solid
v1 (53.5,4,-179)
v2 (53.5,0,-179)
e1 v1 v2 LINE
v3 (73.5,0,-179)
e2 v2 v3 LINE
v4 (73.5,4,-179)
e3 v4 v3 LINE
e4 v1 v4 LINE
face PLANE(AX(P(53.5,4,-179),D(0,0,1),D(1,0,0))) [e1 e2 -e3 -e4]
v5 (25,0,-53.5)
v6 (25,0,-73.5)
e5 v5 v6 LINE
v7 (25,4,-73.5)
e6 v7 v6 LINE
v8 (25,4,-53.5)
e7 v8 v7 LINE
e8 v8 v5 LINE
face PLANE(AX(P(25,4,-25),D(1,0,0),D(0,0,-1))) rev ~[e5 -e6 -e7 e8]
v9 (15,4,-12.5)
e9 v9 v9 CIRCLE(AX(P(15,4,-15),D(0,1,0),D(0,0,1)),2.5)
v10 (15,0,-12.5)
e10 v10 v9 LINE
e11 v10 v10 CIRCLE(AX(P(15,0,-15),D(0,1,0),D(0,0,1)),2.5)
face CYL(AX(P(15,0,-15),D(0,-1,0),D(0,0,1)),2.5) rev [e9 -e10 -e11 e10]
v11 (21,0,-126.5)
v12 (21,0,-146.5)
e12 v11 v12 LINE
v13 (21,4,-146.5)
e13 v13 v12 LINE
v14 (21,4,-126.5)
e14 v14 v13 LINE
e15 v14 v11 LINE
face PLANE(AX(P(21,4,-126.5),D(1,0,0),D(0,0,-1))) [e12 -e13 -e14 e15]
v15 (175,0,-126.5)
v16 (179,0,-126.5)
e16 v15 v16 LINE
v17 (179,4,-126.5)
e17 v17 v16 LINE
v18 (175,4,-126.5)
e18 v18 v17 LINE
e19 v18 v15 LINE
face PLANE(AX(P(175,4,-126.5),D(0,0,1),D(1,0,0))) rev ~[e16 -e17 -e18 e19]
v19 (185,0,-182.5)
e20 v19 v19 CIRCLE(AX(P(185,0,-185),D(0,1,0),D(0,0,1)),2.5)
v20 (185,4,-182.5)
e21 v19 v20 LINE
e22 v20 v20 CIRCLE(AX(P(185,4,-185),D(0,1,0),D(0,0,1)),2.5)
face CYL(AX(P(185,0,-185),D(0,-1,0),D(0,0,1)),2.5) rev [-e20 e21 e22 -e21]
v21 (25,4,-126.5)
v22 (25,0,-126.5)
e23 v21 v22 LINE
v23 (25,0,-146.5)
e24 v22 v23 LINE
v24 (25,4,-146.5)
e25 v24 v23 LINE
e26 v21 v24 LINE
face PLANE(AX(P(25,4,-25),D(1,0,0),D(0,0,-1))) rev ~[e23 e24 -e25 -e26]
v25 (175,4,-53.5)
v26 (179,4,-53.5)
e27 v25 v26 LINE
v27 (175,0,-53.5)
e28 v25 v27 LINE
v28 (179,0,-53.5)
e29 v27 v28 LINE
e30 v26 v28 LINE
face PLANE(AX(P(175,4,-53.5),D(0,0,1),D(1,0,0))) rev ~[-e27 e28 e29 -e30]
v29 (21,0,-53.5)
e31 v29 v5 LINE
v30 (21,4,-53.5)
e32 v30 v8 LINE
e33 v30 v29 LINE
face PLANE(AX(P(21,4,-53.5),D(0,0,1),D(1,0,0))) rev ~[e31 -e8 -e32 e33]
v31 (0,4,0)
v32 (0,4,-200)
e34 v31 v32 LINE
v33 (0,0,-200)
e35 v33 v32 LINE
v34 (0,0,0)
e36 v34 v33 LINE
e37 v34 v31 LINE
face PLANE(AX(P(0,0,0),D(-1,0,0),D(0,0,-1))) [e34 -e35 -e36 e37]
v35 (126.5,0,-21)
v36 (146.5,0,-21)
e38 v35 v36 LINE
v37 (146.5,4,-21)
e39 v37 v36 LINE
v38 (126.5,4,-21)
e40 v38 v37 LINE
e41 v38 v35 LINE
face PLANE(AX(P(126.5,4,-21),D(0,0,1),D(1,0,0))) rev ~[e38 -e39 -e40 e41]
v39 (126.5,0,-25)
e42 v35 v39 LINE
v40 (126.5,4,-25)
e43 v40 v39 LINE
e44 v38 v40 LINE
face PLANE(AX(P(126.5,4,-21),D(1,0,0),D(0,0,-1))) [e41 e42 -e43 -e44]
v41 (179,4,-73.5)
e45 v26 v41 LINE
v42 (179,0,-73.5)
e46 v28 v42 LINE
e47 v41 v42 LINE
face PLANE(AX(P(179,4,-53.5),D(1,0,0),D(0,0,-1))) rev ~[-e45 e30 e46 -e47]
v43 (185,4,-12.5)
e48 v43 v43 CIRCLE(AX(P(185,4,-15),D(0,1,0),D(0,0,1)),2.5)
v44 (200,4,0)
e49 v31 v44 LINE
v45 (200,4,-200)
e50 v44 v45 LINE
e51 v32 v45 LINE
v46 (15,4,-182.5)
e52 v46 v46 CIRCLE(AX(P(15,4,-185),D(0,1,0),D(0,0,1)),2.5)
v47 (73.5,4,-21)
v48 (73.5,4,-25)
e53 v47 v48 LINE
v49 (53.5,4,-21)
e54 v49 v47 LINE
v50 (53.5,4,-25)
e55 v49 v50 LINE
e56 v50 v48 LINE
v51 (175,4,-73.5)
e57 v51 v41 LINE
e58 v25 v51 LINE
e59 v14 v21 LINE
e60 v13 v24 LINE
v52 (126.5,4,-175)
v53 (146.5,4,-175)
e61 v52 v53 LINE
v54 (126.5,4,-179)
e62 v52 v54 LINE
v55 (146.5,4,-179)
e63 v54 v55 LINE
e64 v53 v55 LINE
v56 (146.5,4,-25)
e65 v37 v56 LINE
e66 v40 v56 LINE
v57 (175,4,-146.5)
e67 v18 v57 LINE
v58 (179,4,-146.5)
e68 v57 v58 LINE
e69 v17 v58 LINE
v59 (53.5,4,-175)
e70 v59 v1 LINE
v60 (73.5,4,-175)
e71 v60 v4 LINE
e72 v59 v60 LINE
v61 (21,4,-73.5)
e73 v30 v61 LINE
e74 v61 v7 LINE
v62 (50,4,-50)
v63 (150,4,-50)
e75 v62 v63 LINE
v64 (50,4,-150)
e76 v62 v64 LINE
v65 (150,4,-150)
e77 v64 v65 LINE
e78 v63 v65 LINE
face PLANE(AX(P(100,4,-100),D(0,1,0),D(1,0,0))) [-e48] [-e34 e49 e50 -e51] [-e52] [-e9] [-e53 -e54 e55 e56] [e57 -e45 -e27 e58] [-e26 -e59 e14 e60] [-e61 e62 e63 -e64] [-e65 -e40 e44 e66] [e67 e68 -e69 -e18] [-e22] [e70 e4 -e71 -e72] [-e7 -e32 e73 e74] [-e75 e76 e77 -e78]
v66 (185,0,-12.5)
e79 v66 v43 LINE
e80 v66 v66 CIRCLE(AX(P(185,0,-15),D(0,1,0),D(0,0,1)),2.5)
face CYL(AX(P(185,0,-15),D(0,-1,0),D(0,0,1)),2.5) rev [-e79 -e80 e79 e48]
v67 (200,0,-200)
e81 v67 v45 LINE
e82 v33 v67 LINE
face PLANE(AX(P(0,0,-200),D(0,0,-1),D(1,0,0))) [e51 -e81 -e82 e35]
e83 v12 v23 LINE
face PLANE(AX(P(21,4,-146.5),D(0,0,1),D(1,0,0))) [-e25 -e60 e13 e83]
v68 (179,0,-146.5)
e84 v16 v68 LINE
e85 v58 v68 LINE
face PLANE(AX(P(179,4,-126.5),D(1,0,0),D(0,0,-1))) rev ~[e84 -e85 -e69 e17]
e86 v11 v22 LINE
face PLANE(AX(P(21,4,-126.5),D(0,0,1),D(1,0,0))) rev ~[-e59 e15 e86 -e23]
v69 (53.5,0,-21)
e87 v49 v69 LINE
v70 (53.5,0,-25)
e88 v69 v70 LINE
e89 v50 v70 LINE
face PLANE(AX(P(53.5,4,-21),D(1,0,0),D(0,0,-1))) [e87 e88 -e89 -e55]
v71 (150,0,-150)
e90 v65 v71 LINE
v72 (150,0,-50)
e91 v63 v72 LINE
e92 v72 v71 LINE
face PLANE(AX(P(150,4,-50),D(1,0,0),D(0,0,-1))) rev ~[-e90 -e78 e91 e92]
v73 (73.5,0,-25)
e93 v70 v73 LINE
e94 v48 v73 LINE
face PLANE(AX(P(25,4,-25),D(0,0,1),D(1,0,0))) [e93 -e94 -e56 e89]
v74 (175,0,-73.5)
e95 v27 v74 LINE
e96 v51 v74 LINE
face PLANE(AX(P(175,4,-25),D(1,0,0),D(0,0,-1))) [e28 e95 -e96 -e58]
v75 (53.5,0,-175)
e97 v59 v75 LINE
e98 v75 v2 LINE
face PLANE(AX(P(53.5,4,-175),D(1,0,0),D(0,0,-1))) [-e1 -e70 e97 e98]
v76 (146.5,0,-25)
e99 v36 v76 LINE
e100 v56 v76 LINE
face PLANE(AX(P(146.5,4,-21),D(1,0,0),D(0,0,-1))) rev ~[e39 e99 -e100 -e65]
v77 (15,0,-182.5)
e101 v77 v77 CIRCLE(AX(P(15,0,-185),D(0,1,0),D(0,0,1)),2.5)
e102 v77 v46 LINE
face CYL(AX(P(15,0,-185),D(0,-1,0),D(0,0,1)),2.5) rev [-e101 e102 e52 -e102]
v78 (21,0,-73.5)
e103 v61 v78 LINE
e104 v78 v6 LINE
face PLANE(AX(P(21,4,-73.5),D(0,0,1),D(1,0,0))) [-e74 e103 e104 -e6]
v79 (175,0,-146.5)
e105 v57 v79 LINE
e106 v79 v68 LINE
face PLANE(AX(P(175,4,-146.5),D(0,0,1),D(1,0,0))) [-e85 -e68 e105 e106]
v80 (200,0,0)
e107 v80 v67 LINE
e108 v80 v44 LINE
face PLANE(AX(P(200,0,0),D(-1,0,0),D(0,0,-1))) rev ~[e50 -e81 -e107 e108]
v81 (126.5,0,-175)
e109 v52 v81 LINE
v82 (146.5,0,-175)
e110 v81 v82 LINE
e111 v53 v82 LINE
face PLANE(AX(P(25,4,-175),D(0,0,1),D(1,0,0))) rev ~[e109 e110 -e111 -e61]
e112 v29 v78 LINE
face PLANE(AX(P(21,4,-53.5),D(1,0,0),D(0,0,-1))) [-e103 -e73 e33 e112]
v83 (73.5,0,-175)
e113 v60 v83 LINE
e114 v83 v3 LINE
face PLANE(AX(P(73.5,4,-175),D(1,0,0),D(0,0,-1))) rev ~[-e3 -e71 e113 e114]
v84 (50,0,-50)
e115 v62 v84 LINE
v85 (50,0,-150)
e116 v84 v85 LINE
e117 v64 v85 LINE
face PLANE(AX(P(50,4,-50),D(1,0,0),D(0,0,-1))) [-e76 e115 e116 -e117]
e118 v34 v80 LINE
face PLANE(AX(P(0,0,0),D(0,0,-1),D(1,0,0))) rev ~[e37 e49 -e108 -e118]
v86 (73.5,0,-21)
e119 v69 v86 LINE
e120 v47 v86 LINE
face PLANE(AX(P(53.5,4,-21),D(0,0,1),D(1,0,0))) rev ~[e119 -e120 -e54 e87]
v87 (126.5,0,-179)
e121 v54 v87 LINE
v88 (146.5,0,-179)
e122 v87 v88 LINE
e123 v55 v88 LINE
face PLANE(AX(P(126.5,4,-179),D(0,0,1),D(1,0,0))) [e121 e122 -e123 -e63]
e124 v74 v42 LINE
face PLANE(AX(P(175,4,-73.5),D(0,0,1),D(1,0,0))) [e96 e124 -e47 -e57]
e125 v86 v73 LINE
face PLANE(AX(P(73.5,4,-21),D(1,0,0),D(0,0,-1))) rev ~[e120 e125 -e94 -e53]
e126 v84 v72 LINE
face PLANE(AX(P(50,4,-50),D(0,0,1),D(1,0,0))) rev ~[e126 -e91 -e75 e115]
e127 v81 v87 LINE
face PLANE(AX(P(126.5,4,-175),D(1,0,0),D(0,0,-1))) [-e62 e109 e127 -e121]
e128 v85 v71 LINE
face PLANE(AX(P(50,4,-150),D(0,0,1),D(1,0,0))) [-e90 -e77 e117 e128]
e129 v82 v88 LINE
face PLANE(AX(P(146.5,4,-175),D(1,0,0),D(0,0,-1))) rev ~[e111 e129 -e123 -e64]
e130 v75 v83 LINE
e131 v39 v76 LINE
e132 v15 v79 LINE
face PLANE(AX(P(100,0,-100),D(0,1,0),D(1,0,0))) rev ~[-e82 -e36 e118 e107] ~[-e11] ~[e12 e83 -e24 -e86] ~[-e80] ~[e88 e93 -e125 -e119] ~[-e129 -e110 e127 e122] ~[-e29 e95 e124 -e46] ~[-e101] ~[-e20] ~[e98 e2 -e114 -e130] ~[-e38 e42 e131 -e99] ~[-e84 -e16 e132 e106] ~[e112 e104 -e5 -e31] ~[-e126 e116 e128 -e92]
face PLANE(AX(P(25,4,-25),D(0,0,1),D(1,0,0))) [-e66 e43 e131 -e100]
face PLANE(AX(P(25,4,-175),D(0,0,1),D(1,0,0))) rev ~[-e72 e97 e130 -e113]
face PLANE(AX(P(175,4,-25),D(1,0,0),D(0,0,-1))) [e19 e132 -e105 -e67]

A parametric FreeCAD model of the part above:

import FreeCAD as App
import Part
import Sketcher

V = App.Vector


def add_polygon(sketch, points):
    """Adds a closed chain of lines whose ends are joined by coincident constraints."""
    first, n = sketch.GeometryCount, len(points)
    for a, b in zip(points, points[1:] + points[:1]):
        sketch.addGeometry(Part.LineSegment(App.Vector(*a, 0), App.Vector(*b, 0)), False)
    for i in range(n):
        sketch.addConstraint(Sketcher.Constraint("Coincident", first + i, 2, first + (i + 1) % n, 1))

doc = App.newDocument("Part")
body = doc.addObject("PartDesign::Body", "Body")

# Sketch on XZ plane
sketch1 = body.newObject("Sketcher::SketchObject", "Sketch")
sketch1.AttachmentSupport = (doc.getObject("XZ_Plane"), [""])
sketch1.MapMode = "FlatFace"
add_polygon(sketch1, [(0, -200), (0, 0), (200, 0), (200, -200)])  # lines 0-3
sketch1.addGeometry(Part.Circle(V(15, -15, 0), V(0, 0, 1), 2.5), False)  # 4
sketch1.addGeometry(Part.Circle(V(185, -15, 0), V(0, 0, 1), 2.5), False)  # 5
sketch1.addGeometry(Part.Circle(V(15, -185, 0), V(0, 0, 1), 2.5), False)  # 6
sketch1.addGeometry(Part.Circle(V(185, -185, 0), V(0, 0, 1), 2.5), False)  # 7
sketch1.addConstraint([
    Sketcher.Constraint("Vertical", 0),
    Sketcher.Constraint("Horizontal", 1),
    Sketcher.Constraint("Vertical", 2),
    Sketcher.Constraint("Horizontal", 3),
    Sketcher.Constraint("Coincident", 0, 2, -1, 1),
    Sketcher.Constraint("Equal", 4, 5),
    Sketcher.Constraint("Equal", 5, 6),
    Sketcher.Constraint("Equal", 6, 7),
    Sketcher.Constraint("Horizontal", 4, 3, 5, 3),
    Sketcher.Constraint("Horizontal", 6, 3, 7, 3),
    Sketcher.Constraint("Vertical", 4, 3, 6, 3),
    Sketcher.Constraint("Vertical", 5, 3, 7, 3),
    Sketcher.Constraint("Equal", 3, 0),
    Sketcher.Constraint("Diameter", 4, 5.0),
    Sketcher.Constraint("DistanceX", 1, 1, 1, 2, 200.0),
    Sketcher.Constraint("DistanceX", -1, 1, 4, 3, 15.0),
    Sketcher.Constraint("DistanceY", 4, 3, -1, 1, 15.0),
    Sketcher.Constraint("DistanceX", -1, 1, 5, 3, 185.0),
    Sketcher.Constraint("DistanceY", 6, 3, -1, 1, 185.0),
])
pad1 = body.newObject("PartDesign::Pad", "Pad")
pad1.Profile = sketch1
pad1.Length = 4
pad1.Reversed = True

# Sketch on XZ plane
sketch2 = body.newObject("Sketcher::SketchObject", "Sketch001")
sketch2.AttachmentSupport = (doc.getObject("XZ_Plane"), [""])
sketch2.MapMode = "FlatFace"
sketch2.AttachmentOffset = App.Placement(V(0, 0, -4), App.Rotation())
add_polygon(sketch2, [(25, -53.5), (25, -25), (53.5, -25), (53.5, -21), (73.5, -21), (73.5, -25), (126.5, -25), (126.5, -21), (146.5, -21), (146.5, -25), (175, -25), (175, -53.5), (179, -53.5), (179, -73.5), (175, -73.5), (175, -126.5), (179, -126.5), (179, -146.5), (175, -146.5), (175, -175), (146.5, -175), (146.5, -179), (126.5, -179), (126.5, -175), (73.5, -175), (73.5, -179), (53.5, -179), (53.5, -175), (25, -175), (25, -146.5), (21, -146.5), (21, -126.5), (25, -126.5), (25, -73.5), (21, -73.5), (21, -53.5)])  # lines 0-35
sketch2.addConstraint([
    Sketcher.Constraint("Vertical", 0),
    Sketcher.Constraint("Horizontal", 1),
    Sketcher.Constraint("Vertical", 2),
    Sketcher.Constraint("Horizontal", 3),
    Sketcher.Constraint("Vertical", 4),
    Sketcher.Constraint("Horizontal", 5),
    Sketcher.Constraint("Vertical", 6),
    Sketcher.Constraint("Horizontal", 7),
    Sketcher.Constraint("Vertical", 8),
    Sketcher.Constraint("Horizontal", 9),
    Sketcher.Constraint("Vertical", 10),
    Sketcher.Constraint("Horizontal", 11),
    Sketcher.Constraint("Vertical", 12),
    Sketcher.Constraint("Horizontal", 13),
    Sketcher.Constraint("Vertical", 14),
    Sketcher.Constraint("Horizontal", 15),
    Sketcher.Constraint("Vertical", 16),
    Sketcher.Constraint("Horizontal", 17),
    Sketcher.Constraint("Vertical", 18),
    Sketcher.Constraint("Horizontal", 19),
    Sketcher.Constraint("Vertical", 20),
    Sketcher.Constraint("Horizontal", 21),
    Sketcher.Constraint("Vertical", 22),
    Sketcher.Constraint("Horizontal", 23),
    Sketcher.Constraint("Vertical", 24),
    Sketcher.Constraint("Horizontal", 25),
    Sketcher.Constraint("Vertical", 26),
    Sketcher.Constraint("Horizontal", 27),
    Sketcher.Constraint("Vertical", 28),
    Sketcher.Constraint("Horizontal", 29),
    Sketcher.Constraint("Vertical", 30),
    Sketcher.Constraint("Horizontal", 31),
    Sketcher.Constraint("Vertical", 32),
    Sketcher.Constraint("Horizontal", 33),
    Sketcher.Constraint("Vertical", 34),
    Sketcher.Constraint("Horizontal", 35),
    Sketcher.Constraint("Horizontal", 1, 2, 4, 2),
    Sketcher.Constraint("Horizontal", 3, 2, 6, 2),
    Sketcher.Constraint("Horizontal", 5, 2, 8, 2),
    Sketcher.Constraint("Horizontal", 19, 2, 22, 2),
    Sketcher.Constraint("Horizontal", 21, 2, 24, 2),
    Sketcher.Constraint("Horizontal", 23, 2, 26, 2),
    Sketcher.Constraint("Horizontal", 17, 2, 28, 2),
    Sketcher.Constraint("Horizontal", 15, 2, 30, 2),
    Sketcher.Constraint("Horizontal", 13, 2, 32, 2),
    Sketcher.Constraint("Horizontal", 11, 2, 34, 2),
    Sketcher.Constraint("Vertical", 10, 2, 13, 2),
    Sketcher.Constraint("Vertical", 12, 2, 15, 2),
    Sketcher.Constraint("Vertical", 14, 2, 17, 2),
    Sketcher.Constraint("Vertical", 8, 2, 19, 2),
    Sketcher.Constraint("Vertical", 6, 2, 21, 2),
    Sketcher.Constraint("Vertical", 4, 2, 23, 2),
    Sketcher.Constraint("Vertical", 2, 2, 25, 2),
    Sketcher.Constraint("Vertical", 0, 2, 27, 2),
    Sketcher.Constraint("Vertical", 28, 2, 31, 2),
    Sketcher.Constraint("Vertical", 30, 2, 33, 2),
    Sketcher.Constraint("Equal", 3, 7),
    Sketcher.Constraint("Equal", 1, 9),
    Sketcher.Constraint("Equal", 17, 29),
    Sketcher.Constraint("Equal", 27, 0),
    Sketcher.Constraint("Equal", 35, 2),
    Sketcher.Constraint("Equal", 25, 12),
    Sketcher.Constraint("Equal", 23, 14),
    Sketcher.Constraint("Equal", 12, 16),
    Sketcher.Constraint("Equal", 10, 18),
    Sketcher.Constraint("Equal", 8, 20),
    Sketcher.Constraint("DistanceX", 3, 1, 3, 2, 20.0),
    Sketcher.Constraint("DistanceX", 5, 1, 5, 2, 53.0),
    Sketcher.Constraint("DistanceX", 11, 1, 11, 2, 4.0),
    Sketcher.Constraint("DistanceX", 1, 1, 1, 2, 28.5),
    Sketcher.Constraint("DistanceX", -1, 1, 0, 2, 25.0),
    Sketcher.Constraint("DistanceY", 0, 2, -1, 1, 25.0),
])
pocket1 = body.newObject("PartDesign::Pocket", "Pocket")
pocket1.Profile = sketch2
pocket1.Length = 4
pocket1.Reversed = True

# Sketch on XZ plane
sketch3 = body.newObject("Sketcher::SketchObject", "Sketch002")
sketch3.AttachmentSupport = (doc.getObject("XZ_Plane"), [""])
sketch3.MapMode = "FlatFace"
sketch3.AttachmentOffset = App.Placement(V(0, 0, -4), App.Rotation())
add_polygon(sketch3, [(25, -175), (25, -25), (175, -25), (175, -175)])  # lines 0-3
add_polygon(sketch3, [(150, -50), (50, -50), (50, -150), (150, -150)])  # lines 4-7
sketch3.addConstraint([
    Sketcher.Constraint("Vertical", 0),
    Sketcher.Constraint("Horizontal", 1),
    Sketcher.Constraint("Vertical", 2),
    Sketcher.Constraint("Horizontal", 3),
    Sketcher.Constraint("Horizontal", 4),
    Sketcher.Constraint("Vertical", 5),
    Sketcher.Constraint("Horizontal", 6),
    Sketcher.Constraint("Vertical", 7),
    Sketcher.Constraint("Equal", 3, 0),
    Sketcher.Constraint("Equal", 6, 5),
    Sketcher.Constraint("DistanceX", 1, 1, 1, 2, 150.0),
    Sketcher.Constraint("DistanceX", 4, 2, 4, 1, 100.0),
    Sketcher.Constraint("DistanceX", -1, 1, 0, 2, 25.0),
    Sketcher.Constraint("DistanceY", 0, 2, -1, 1, 25.0),
    Sketcher.Constraint("DistanceX", -1, 1, 4, 2, 50.0),
    Sketcher.Constraint("DistanceY", 4, 2, -1, 1, 50.0),
])
pad2 = body.newObject("PartDesign::Pad", "Pad001")
pad2.Profile = sketch3
pad2.Length = 4

doc.recompute()
